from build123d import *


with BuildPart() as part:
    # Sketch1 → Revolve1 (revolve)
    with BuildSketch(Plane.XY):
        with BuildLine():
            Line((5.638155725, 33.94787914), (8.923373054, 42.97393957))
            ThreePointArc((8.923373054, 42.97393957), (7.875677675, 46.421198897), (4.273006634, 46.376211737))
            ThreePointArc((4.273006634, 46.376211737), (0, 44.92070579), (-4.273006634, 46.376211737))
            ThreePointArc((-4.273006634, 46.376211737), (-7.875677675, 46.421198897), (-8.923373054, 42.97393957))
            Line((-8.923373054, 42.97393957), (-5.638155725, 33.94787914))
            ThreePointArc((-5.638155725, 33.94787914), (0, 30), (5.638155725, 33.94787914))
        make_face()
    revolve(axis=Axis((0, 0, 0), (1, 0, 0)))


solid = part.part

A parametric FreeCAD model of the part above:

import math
import FreeCAD as App
import Part
import Sketcher
Q = App.Units.Quantity

doc = App.newDocument("Part")
params = doc.addObject("Spreadsheet::Sheet", "Params")
for row, (alias, value) in enumerate([
    ("sketch1_radius", "3 mm"),
    ("sketch1_radius2", "7 mm"),
    ("sketch1_radius3", "6 mm"),
    ("revolution_angle", "360 deg"),
], start=1):
    params.set(f"A{row}", alias)
    params.set(f"B{row}", "=" + value)
    params.setAlias(f"B{row}", alias)

body = doc.addObject("PartDesign::Body", "Body")

# Sketch on XY plane
sketch1 = body.newObject("Sketcher::SketchObject", "Sketch")
sketch1.AttachmentSupport = (doc.getObject("XY_Plane"), [""])
sketch1.MapMode = "FlatFace"
sketch1.addGeometry([
    Part.LineSegment(App.Vector(5.6, 33.9, 0), App.Vector(8.9, 43, 0)),  # 0
    Part.ArcOfCircle(Part.Circle(App.Vector(6.1, 44, 0), App.Vector(0, 0, 1), 3), math.radians(-20), math.radians(128)),  # 1
    Part.ArcOfCircle(Part.Circle(App.Vector(0, 51.9, 0), App.Vector(0, 0, 1), 7), math.radians(-128), math.radians(-52)),  # 2
    Part.ArcOfCircle(Part.Circle(App.Vector(-6.1, 44, 0), App.Vector(0, 0, 1), 3), math.radians(52), math.radians(200)),  # 3
    Part.LineSegment(App.Vector(-8.9, 43, 0), App.Vector(-5.6, 33.9, 0)),  # 4
    Part.ArcOfCircle(Part.Circle(App.Vector(0, 36, 0), App.Vector(0, 0, 1), 6), math.radians(-160), math.radians(-20)),  # 5
], False)
sketch1.addConstraint([
    Sketcher.Constraint("Tangent", 0, 2, 1, 1),
    Sketcher.Constraint("Tangent", 1, 2, 2, 2),
    Sketcher.Constraint("Tangent", 2, 1, 3, 1),
    Sketcher.Constraint("Tangent", 3, 2, 4, 1),
    Sketcher.Constraint("Tangent", 4, 2, 5, 1),
    Sketcher.Constraint("Tangent", 5, 2, 0, 1),
    Sketcher.Constraint("Equal", 1, 3),
    Sketcher.Constraint("Symmetric", 1, 3, 3, 3, -2),
    Sketcher.Constraint("PointOnObject", 5, 3, -2),
    Sketcher.Constraint("Radius", 1, Q("3 mm")),
    Sketcher.Constraint("Radius", 2, Q("7 mm")),
    Sketcher.Constraint("Radius", 5, Q("6 mm")),
    Sketcher.Constraint("Angle", 0, Q("70 deg")),
    Sketcher.Constraint("DistanceY", -1, 1, 1, 3, Q("44 mm")),
    Sketcher.Constraint("DistanceY", -1, 1, 5, 3, Q("36 mm")),
])
sketch1.setExpression("Constraints[9]", "Params.sketch1_radius")
sketch1.setExpression("Constraints[10]", "Params.sketch1_radius2")
sketch1.setExpression("Constraints[11]", "Params.sketch1_radius3")
revolution = body.newObject("PartDesign::Revolution", "Revolution")
revolution.Profile = sketch1
revolution.ReferenceAxis = (sketch1, ["H_Axis"])
revolution.setExpression("Angle", "Params.revolution_angle")

doc.recompute()
